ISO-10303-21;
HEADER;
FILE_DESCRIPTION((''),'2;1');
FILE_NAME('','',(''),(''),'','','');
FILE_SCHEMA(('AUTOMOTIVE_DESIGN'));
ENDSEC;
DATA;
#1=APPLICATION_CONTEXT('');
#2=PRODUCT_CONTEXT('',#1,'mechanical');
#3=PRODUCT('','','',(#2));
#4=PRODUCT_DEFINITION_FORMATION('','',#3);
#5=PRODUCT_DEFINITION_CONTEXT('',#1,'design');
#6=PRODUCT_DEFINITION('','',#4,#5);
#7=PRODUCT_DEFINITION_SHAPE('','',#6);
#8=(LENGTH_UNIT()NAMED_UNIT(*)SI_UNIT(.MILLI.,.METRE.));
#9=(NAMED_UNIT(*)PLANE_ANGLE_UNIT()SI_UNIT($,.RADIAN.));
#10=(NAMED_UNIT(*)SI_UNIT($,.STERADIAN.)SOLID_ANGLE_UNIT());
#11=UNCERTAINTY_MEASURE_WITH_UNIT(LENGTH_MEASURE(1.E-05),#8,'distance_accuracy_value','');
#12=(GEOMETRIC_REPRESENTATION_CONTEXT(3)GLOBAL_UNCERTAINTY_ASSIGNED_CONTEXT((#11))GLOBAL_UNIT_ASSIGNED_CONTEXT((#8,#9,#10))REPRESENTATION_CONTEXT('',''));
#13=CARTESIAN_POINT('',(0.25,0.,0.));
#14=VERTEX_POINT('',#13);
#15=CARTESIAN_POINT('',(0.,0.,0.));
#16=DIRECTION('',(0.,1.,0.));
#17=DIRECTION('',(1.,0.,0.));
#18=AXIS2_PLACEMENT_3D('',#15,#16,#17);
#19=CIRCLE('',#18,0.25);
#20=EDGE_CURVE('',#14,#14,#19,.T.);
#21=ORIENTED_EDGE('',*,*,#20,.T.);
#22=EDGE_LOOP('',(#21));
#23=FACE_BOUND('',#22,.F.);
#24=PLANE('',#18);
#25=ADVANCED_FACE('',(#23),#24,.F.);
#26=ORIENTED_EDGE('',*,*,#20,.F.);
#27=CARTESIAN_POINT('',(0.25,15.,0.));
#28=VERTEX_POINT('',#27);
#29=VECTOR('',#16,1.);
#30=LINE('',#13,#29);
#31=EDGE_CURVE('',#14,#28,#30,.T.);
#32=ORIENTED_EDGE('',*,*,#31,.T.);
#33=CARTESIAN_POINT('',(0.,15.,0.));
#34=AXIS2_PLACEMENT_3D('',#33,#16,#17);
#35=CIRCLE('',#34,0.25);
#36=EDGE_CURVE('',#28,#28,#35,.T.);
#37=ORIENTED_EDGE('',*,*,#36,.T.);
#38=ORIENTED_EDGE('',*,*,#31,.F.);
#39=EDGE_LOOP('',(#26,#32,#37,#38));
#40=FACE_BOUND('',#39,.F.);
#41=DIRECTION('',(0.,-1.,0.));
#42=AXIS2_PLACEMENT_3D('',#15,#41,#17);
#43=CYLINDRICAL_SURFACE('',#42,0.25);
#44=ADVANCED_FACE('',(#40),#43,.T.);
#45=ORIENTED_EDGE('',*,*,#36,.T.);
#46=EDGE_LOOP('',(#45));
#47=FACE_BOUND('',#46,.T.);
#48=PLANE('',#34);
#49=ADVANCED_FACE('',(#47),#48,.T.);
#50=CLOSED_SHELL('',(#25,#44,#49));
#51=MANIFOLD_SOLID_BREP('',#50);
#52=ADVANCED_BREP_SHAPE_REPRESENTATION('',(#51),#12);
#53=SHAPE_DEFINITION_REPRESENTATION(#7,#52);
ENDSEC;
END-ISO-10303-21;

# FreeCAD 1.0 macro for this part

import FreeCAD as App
import Part
import Sketcher

doc = App.newDocument("Part")
body = doc.addObject("PartDesign::Body", "Body")

# Sketch on XZ plane
sketch1 = body.newObject("Sketcher::SketchObject", "Sketch")
sketch1.AttachmentSupport = (doc.getObject("XZ_Plane"), [""])
sketch1.MapMode = "FlatFace"
sketch1.addGeometry(Part.Circle(App.Vector(0, 0, 0), App.Vector(0, 0, 1), 0.25), False)
sketch1.addConstraint([
    Sketcher.Constraint("Coincident", 0, 3, -1, 1),
    Sketcher.Constraint("Diameter", 0, 0.5),
])
pad1 = body.newObject("PartDesign::Pad", "Pad")
pad1.Profile = sketch1
pad1.Length = 15
pad1.Reversed = True

doc.recompute()
